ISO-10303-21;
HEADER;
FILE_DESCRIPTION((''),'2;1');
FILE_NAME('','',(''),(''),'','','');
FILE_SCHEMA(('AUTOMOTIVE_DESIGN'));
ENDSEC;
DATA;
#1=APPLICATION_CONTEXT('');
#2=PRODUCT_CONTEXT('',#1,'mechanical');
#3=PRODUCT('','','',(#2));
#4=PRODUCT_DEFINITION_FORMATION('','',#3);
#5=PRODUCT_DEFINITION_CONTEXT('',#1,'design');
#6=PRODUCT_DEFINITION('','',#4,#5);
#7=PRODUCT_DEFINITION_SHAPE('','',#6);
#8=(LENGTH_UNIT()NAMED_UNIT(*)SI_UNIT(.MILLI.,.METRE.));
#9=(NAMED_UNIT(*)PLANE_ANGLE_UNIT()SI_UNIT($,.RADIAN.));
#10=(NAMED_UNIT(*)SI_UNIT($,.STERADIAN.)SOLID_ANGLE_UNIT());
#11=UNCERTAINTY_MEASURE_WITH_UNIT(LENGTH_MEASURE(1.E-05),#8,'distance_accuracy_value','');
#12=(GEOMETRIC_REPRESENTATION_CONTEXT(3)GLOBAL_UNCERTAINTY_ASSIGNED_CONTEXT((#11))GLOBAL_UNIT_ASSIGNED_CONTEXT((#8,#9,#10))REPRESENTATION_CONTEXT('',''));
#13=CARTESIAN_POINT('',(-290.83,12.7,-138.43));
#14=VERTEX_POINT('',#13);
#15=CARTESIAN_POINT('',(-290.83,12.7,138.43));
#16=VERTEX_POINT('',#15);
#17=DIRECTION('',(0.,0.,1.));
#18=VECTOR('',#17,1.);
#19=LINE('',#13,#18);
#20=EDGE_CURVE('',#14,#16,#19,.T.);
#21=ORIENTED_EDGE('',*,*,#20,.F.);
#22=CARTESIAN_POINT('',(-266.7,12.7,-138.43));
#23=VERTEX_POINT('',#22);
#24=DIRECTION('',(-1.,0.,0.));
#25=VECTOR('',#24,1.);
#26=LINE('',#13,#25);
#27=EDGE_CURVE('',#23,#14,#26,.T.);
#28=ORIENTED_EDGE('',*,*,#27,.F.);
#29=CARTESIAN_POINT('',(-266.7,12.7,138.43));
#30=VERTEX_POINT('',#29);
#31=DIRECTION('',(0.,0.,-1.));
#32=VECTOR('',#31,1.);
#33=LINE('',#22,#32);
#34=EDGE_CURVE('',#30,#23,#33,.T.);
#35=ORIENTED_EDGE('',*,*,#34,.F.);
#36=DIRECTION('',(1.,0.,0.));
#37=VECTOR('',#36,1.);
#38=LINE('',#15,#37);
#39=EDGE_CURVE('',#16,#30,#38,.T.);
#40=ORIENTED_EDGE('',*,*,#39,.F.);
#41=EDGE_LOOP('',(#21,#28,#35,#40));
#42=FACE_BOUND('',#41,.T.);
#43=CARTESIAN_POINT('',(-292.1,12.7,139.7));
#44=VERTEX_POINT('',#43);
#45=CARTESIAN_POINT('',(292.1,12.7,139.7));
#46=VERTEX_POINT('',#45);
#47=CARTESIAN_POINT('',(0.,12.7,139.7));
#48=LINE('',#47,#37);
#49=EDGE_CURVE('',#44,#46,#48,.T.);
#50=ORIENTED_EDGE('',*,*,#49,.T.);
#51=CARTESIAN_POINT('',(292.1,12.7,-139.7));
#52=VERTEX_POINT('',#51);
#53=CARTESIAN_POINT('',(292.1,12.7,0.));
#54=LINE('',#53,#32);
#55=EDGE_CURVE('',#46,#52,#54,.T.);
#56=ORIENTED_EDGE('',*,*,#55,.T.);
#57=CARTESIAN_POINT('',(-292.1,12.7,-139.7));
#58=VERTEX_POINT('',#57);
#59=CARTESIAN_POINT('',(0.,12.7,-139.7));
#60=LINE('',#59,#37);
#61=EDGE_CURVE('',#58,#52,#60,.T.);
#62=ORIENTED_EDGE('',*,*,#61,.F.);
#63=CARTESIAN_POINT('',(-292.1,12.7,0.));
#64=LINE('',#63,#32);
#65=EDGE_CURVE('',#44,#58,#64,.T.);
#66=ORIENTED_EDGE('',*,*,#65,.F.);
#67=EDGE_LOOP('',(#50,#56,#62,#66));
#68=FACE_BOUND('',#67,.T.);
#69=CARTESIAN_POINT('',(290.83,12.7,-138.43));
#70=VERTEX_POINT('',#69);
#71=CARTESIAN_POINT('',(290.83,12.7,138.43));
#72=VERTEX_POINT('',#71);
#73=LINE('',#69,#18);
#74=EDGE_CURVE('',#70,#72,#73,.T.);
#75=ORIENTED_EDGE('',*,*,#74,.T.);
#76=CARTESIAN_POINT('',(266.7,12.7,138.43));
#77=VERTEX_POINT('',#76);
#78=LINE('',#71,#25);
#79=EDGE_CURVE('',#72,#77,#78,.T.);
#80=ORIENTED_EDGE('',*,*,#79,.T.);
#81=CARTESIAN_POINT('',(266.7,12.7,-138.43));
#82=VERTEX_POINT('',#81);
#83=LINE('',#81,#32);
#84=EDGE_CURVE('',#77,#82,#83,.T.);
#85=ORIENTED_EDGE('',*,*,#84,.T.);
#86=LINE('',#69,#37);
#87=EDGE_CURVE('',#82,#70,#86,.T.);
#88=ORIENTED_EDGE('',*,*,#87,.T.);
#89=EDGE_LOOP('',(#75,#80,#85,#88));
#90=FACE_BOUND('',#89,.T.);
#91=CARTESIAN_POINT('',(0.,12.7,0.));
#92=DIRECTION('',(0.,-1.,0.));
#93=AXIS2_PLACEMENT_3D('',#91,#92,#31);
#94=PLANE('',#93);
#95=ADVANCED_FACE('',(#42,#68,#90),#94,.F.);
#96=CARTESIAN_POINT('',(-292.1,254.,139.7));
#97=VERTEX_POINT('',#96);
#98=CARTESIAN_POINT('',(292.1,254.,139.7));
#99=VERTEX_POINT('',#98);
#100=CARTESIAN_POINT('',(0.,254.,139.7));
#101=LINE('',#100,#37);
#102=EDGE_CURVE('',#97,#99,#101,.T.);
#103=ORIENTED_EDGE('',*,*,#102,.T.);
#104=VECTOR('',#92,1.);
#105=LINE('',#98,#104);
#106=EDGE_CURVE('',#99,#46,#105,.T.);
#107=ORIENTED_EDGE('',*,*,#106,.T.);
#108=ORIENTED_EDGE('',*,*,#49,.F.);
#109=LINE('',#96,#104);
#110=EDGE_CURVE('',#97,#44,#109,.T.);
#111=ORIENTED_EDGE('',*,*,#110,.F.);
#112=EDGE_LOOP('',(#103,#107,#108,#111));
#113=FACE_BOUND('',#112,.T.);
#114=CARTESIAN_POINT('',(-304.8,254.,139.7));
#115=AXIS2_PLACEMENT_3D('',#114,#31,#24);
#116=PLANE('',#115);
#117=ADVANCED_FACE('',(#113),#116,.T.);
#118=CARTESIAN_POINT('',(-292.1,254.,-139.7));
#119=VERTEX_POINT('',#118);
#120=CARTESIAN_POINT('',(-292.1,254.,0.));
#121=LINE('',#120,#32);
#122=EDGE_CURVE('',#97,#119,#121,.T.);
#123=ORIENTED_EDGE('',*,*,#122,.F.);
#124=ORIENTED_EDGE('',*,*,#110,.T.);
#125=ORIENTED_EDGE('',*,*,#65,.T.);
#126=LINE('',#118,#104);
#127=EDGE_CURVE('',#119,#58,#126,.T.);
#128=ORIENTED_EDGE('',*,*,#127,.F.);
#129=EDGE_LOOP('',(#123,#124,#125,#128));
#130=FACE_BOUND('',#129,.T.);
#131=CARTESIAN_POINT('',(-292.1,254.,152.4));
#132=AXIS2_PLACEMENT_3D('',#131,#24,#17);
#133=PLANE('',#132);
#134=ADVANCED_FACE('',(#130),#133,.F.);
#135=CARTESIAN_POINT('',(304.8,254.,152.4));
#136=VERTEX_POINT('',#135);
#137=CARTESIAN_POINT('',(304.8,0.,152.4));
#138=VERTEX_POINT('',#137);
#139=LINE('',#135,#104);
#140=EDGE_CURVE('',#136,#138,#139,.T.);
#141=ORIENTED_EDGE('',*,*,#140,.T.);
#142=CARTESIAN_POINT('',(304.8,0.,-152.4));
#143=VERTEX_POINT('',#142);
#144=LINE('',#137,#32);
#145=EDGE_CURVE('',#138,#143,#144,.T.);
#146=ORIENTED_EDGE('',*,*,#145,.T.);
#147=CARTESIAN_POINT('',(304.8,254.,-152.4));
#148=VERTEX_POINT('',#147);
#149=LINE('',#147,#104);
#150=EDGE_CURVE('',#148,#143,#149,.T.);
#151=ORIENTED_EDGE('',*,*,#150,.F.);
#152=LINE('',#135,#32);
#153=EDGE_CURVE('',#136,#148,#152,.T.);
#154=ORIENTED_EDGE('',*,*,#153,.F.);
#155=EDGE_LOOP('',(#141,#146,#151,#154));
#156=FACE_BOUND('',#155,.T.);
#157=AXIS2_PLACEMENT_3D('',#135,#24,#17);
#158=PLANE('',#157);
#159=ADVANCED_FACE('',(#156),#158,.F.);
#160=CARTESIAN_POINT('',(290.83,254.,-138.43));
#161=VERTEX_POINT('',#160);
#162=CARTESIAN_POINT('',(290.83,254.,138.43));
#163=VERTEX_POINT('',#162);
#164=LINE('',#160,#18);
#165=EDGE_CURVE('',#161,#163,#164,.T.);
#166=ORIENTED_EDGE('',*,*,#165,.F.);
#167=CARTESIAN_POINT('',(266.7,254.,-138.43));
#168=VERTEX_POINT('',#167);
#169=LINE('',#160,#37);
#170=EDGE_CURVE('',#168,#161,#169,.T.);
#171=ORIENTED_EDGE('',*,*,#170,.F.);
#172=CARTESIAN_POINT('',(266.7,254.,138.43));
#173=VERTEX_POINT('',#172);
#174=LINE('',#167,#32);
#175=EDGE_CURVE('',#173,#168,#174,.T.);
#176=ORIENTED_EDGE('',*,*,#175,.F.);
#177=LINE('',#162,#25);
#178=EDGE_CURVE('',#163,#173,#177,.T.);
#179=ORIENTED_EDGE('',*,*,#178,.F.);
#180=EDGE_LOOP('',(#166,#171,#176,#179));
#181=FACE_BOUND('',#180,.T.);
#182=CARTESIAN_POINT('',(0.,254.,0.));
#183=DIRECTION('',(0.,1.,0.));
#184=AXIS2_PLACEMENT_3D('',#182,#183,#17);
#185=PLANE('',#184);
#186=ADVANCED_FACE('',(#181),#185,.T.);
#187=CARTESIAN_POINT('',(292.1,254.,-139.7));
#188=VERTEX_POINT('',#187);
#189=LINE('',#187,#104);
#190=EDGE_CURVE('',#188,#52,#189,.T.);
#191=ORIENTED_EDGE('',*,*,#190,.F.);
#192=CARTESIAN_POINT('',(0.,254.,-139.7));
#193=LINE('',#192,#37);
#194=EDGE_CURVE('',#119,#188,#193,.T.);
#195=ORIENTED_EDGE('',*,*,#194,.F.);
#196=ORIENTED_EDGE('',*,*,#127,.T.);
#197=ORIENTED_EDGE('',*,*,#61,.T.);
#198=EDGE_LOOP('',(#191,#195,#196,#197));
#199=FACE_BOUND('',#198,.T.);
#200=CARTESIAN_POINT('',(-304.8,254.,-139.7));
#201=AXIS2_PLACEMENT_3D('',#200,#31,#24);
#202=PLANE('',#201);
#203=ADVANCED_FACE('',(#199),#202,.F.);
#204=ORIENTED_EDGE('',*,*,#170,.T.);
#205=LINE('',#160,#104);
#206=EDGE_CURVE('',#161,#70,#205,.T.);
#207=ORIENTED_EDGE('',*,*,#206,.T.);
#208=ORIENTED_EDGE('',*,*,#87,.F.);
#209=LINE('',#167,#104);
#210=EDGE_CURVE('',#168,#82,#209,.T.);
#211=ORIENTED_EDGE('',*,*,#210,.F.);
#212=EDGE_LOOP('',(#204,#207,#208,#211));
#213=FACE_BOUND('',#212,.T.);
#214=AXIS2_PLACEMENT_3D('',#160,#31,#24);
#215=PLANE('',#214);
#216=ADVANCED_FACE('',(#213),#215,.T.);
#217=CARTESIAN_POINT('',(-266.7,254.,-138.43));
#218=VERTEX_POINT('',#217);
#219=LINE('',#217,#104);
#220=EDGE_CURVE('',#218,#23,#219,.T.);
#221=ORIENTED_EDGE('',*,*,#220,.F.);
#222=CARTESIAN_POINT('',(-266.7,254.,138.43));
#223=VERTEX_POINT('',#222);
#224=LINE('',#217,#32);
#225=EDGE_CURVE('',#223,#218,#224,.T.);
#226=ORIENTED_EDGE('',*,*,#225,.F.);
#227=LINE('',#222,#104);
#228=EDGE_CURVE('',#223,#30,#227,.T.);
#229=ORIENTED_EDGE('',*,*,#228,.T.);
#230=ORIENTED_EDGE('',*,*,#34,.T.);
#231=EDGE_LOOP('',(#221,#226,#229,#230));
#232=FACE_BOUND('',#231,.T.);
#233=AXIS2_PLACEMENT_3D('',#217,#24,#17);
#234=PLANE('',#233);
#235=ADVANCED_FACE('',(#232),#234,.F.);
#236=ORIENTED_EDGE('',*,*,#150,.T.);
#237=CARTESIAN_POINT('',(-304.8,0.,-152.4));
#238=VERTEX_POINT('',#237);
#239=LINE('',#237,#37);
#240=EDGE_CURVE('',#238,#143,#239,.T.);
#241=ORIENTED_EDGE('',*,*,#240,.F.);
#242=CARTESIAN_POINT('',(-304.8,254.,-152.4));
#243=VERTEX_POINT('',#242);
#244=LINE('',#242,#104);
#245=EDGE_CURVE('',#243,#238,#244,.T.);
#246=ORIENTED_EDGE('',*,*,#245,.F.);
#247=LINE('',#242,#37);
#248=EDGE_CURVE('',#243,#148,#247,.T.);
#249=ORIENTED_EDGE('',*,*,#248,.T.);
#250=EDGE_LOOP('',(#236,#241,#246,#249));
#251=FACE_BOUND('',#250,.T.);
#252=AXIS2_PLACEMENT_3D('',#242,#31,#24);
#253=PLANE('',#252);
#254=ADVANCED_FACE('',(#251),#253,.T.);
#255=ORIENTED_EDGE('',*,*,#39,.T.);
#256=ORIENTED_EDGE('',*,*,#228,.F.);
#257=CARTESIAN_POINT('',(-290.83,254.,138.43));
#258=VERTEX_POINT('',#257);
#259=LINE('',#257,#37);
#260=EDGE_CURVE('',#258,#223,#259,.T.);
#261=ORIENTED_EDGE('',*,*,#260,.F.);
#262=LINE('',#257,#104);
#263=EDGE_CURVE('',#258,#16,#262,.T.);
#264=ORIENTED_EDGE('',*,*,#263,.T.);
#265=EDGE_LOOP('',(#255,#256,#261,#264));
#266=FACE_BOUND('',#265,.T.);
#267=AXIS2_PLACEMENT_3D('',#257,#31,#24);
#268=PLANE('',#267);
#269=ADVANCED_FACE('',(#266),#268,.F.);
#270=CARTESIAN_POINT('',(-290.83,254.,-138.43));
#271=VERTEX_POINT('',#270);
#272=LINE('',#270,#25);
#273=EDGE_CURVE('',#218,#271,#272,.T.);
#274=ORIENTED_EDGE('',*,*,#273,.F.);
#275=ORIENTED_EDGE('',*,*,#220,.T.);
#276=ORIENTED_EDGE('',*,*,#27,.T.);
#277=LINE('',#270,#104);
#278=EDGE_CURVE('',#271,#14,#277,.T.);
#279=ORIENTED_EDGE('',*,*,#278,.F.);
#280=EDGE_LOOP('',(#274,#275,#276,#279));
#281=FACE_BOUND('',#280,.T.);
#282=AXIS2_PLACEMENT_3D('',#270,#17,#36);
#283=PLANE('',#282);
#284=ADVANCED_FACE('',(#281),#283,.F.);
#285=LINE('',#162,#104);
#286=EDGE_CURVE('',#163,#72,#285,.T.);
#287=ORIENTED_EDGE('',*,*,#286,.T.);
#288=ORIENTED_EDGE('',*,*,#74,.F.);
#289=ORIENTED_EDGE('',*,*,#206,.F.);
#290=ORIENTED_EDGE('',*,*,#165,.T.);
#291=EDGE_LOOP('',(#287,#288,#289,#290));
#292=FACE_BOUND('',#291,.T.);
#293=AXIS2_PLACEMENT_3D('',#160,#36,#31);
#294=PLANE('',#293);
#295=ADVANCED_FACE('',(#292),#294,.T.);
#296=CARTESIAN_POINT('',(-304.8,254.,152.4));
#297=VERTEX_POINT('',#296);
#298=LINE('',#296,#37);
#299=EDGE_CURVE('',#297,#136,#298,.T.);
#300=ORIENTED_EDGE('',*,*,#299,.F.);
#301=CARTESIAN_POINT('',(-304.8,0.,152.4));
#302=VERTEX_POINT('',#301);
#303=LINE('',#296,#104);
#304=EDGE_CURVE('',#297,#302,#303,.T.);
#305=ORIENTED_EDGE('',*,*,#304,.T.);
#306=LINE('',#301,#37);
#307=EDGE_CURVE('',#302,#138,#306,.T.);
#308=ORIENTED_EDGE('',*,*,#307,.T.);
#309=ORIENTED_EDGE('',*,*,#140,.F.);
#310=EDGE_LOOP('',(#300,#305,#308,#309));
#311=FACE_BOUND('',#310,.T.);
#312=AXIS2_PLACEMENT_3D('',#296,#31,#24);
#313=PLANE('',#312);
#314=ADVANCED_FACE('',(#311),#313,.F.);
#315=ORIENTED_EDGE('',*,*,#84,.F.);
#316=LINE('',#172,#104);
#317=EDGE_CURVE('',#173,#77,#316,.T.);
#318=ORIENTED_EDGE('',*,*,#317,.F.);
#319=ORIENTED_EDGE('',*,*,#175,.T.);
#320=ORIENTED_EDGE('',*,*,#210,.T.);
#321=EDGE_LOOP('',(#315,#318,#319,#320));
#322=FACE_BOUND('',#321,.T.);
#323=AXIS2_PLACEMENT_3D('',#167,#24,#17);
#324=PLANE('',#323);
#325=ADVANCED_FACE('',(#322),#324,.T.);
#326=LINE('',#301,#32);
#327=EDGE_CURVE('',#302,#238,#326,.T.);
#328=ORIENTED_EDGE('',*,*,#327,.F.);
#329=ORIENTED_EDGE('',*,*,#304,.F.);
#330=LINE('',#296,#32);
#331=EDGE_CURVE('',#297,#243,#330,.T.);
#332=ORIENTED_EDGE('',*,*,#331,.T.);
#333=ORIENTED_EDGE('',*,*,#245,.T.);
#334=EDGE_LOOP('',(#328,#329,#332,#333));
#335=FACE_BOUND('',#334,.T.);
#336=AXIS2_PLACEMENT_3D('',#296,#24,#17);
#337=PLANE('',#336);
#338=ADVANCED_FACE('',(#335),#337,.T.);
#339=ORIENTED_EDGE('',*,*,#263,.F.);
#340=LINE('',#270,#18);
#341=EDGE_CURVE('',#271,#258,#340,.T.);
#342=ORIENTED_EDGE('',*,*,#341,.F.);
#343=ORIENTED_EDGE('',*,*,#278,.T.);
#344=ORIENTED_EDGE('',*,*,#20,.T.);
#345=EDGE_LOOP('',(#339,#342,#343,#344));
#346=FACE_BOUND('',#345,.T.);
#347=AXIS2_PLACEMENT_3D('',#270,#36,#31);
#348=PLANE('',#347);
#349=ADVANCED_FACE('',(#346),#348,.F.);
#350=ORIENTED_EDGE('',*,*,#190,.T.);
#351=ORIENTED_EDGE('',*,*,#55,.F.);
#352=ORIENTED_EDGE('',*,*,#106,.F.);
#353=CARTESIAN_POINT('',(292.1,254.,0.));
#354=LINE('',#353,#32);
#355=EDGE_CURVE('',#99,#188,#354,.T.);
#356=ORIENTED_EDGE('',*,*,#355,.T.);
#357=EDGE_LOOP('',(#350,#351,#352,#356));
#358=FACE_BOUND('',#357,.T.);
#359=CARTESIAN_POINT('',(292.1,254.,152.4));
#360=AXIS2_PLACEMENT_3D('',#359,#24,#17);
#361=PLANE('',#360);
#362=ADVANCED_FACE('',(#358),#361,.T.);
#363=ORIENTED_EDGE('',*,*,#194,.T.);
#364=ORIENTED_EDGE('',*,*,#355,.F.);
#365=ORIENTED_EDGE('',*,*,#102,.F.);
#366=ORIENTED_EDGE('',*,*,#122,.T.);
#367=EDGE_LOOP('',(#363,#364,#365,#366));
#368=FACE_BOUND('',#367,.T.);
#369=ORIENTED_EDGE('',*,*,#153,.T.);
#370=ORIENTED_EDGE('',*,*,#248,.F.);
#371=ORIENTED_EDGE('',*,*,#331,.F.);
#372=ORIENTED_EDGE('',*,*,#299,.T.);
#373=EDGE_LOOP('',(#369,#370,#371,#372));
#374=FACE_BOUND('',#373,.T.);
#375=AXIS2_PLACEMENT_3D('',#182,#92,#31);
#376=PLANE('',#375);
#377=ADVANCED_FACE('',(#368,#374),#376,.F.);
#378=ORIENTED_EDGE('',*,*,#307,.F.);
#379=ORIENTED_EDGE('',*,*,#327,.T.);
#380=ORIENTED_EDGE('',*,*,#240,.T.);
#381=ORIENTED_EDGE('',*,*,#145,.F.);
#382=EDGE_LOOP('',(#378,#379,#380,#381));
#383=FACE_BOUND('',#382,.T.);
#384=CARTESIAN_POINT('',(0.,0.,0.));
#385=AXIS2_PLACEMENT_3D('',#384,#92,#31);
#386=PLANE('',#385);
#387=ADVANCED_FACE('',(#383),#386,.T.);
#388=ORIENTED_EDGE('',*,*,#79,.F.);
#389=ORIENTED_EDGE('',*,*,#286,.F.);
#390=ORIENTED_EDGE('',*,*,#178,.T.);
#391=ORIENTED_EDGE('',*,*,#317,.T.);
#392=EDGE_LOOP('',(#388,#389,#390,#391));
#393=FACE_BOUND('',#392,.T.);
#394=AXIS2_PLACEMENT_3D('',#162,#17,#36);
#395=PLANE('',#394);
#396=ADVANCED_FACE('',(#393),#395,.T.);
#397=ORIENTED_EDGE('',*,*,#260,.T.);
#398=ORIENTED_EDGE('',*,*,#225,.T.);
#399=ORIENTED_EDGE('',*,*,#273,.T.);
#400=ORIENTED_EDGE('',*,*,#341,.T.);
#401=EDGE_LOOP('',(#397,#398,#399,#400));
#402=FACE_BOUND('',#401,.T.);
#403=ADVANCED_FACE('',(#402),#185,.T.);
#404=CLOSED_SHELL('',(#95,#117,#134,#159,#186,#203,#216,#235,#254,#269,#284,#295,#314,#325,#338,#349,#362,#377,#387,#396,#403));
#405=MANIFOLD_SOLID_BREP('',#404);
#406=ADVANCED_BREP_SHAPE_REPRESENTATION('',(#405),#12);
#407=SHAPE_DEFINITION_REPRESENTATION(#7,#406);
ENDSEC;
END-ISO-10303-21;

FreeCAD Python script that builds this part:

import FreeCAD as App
import Part
import Sketcher

V = App.Vector
Q = App.Units.Quantity


def faces_at(feature, points):
    """Names of the faces that lie closest to the given points."""
    faces = feature.Shape.Faces
    near = lambda p: min(range(len(faces)), key=lambda i: faces[i].distToShape(Part.Vertex(*p))[0])
    return sorted({f"Face{near(p) + 1}" for p in points})

doc = App.newDocument("Part")
params = doc.addObject("Spreadsheet::Sheet", "Params")
for row, (alias, value) in enumerate([
    ("sketch1_width", "24 in"),
    ("sketch1_height", "12 in"),
    ("pad1_length", "10 in"),
    ("thickness_wall", "0.5 in"),
    ("sketch2_height", "10.9 in"),
    ("sketch2_width", "0.95 in"),
    ("pad2_length", "9.5 in"),
], start=1):
    params.set(f"A{row}", alias)
    params.set(f"B{row}", "=" + value)
    params.setAlias(f"B{row}", alias)

body = doc.addObject("PartDesign::Body", "Body")

# Sketch on XZ plane
sketch1 = doc.addObject("Sketcher::SketchObject", "Sketch")
body.addObject(sketch1)
sketch1.AttachmentSupport = (doc.XZ_Plane, [""])
sketch1.MapMode = "FlatFace"
sketch1.addGeometry(Part.LineSegment(V(-305, -152, 0), V(-305, 152, 0)), False)
sketch1.addGeometry(Part.LineSegment(V(-305, 152, 0), V(305, 152, 0)), False)
sketch1.addGeometry(Part.LineSegment(V(305, 152, 0), V(305, -152, 0)), False)
sketch1.addGeometry(Part.LineSegment(V(305, -152, 0), V(-305, -152, 0)), False)
sketch1.addConstraint(Sketcher.Constraint("Coincident", 0, 2, 1, 1))
sketch1.addConstraint(Sketcher.Constraint("Coincident", 1, 2, 2, 1))
sketch1.addConstraint(Sketcher.Constraint("Coincident", 2, 2, 3, 1))
sketch1.addConstraint(Sketcher.Constraint("Coincident", 3, 2, 0, 1))
sketch1.addConstraint(Sketcher.Constraint("Vertical", 0))
sketch1.addConstraint(Sketcher.Constraint("Horizontal", 1))
sketch1.addConstraint(Sketcher.Constraint("Vertical", 2))
sketch1.addConstraint(Sketcher.Constraint("Horizontal", 3))
sketch1.addConstraint(Sketcher.Constraint("Symmetric", 0, 2, 2, 2, -1, 1))
sketch1.addConstraint(Sketcher.Constraint("DistanceX", 1, 1, 1, 2, Q("24 in")))
sketch1.addConstraint(Sketcher.Constraint("DistanceY", 0, 1, 0, 2, Q("12 in")))
sketch1.setExpression("Constraints[9]", "Params.sketch1_width")
sketch1.setExpression("Constraints[10]", "Params.sketch1_height")
pad1 = doc.addObject("PartDesign::Pad", "Pad")
body.addObject(pad1)
pad1.Profile = sketch1
pad1.setExpression("Length", "Params.pad1_length")
pad1.Reversed = True
doc.recompute()

thickness = doc.addObject("PartDesign::Thickness", "Thickness")
body.addObject(thickness)
thickness.Base = (pad1, faces_at(pad1, [(0, 254, 0)]))
thickness.setExpression("Value", "Params.thickness_wall")
thickness.Reversed = True
thickness.Join = "Intersection"

# Sketch on XZ plane
sketch2 = doc.addObject("Sketcher::SketchObject", "Sketch001")
body.addObject(sketch2)
sketch2.AttachmentSupport = (doc.XZ_Plane, [""])
sketch2.MapMode = "FlatFace"
sketch2.AttachmentOffset = App.Placement(V(0, 0, -0.5 * 25.4), App.Rotation())
sketch2.addGeometry(Part.LineSegment(V(-291, -138, 0), V(-291, 138, 0)), False)
sketch2.addGeometry(Part.LineSegment(V(-291, 138, 0), V(-267, 138, 0)), False)
sketch2.addGeometry(Part.LineSegment(V(-267, 138, 0), V(-267, -138, 0)), False)
sketch2.addGeometry(Part.LineSegment(V(-267, -138, 0), V(-291, -138, 0)), False)
sketch2.addConstraint(Sketcher.Constraint("Coincident", 0, 2, 1, 1))
sketch2.addConstraint(Sketcher.Constraint("Coincident", 1, 2, 2, 1))
sketch2.addConstraint(Sketcher.Constraint("Coincident", 2, 2, 3, 1))
sketch2.addConstraint(Sketcher.Constraint("Coincident", 3, 2, 0, 1))
sketch2.addConstraint(Sketcher.Constraint("Vertical", 0))
sketch2.addConstraint(Sketcher.Constraint("Horizontal", 1))
sketch2.addConstraint(Sketcher.Constraint("Vertical", 2))
sketch2.addConstraint(Sketcher.Constraint("Horizontal", 3))
sketch2.addConstraint(Sketcher.Constraint("DistanceY", 0, 1, 0, 2, Q("10.9 in")))
sketch2.addConstraint(Sketcher.Constraint("DistanceX", 1, 1, 1, 2, Q("0.95 in")))
sketch2.addConstraint(Sketcher.Constraint("DistanceX", 1, 2, -1, 1, Q("10.5 in")))
sketch2.addConstraint(Sketcher.Constraint("DistanceY", -1, 1, 0, 2, Q("5.45 in")))
sketch2.setExpression("Constraints[8]", "Params.sketch2_height")
sketch2.setExpression("Constraints[9]", "Params.sketch2_width")
pad2 = doc.addObject("PartDesign::Pad", "Pad001")
body.addObject(pad2)
pad2.Profile = sketch2
pad2.setExpression("Length", "Params.pad2_length")
pad2.Reversed = True
doc.recompute()

mirrored = doc.addObject("PartDesign::Mirrored", "Mirrored")
body.addObject(mirrored)
mirrored.Originals = [pad2]
mirrored.MirrorPlane = (doc.YZ_Plane, [""])
body.Tip = mirrored

doc.recompute()
